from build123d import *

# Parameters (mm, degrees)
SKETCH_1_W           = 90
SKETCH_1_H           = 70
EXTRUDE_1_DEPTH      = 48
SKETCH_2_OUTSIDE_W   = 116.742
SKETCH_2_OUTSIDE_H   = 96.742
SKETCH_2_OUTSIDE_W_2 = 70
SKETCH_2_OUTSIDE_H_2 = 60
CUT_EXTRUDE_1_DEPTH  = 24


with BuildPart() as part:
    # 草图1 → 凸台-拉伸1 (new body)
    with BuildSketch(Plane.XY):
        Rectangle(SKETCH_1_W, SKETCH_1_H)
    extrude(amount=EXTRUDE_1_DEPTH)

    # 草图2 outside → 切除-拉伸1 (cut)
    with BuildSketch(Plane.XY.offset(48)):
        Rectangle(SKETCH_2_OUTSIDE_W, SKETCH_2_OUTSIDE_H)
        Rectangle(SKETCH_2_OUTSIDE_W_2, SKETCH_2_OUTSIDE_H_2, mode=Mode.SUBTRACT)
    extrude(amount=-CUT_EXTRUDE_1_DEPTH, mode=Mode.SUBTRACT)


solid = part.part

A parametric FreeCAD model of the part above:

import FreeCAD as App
import Part
import Sketcher

doc = App.newDocument("Part")
body = doc.addObject("PartDesign::Body", "Body")

# Sketch on XY plane
sketch1 = body.newObject("Sketcher::SketchObject", "Sketch")
sketch1.AttachmentSupport = (doc.getObject("XY_Plane"), [""])
sketch1.MapMode = "FlatFace"
sketch1.addGeometry([
    Part.LineSegment(App.Vector(-45, 35, 0), App.Vector(-45, -35, 0)),
    Part.LineSegment(App.Vector(-45, -35, 0), App.Vector(45, -35, 0)),
    Part.LineSegment(App.Vector(45, -35, 0), App.Vector(45, 35, 0)),
    Part.LineSegment(App.Vector(45, 35, 0), App.Vector(-45, 35, 0)),
], False)
sketch1.addConstraint([
    Sketcher.Constraint("Coincident", 0, 2, 1, 1),
    Sketcher.Constraint("Coincident", 1, 2, 2, 1),
    Sketcher.Constraint("Coincident", 2, 2, 3, 1),
    Sketcher.Constraint("Coincident", 3, 2, 0, 1),
    Sketcher.Constraint("Vertical", 0),
    Sketcher.Constraint("Horizontal", 1),
    Sketcher.Constraint("Vertical", 2),
    Sketcher.Constraint("Horizontal", 3),
    Sketcher.Constraint("Symmetric", 0, 2, 2, 2, -1, 1),
    Sketcher.Constraint("DistanceX", 1, 1, 1, 2, 90.0),
    Sketcher.Constraint("DistanceY", 0, 2, 0, 1, 70.0),
])
pad1 = body.newObject("PartDesign::Pad", "Pad")
pad1.Profile = sketch1
pad1.Length = 48

# Sketch on XY plane
sketch2 = body.newObject("Sketcher::SketchObject", "Sketch001")
sketch2.AttachmentSupport = (doc.getObject("XY_Plane"), [""])
sketch2.MapMode = "FlatFace"
sketch2.AttachmentOffset = App.Placement(App.Vector(0, 0, 48), App.Rotation())
sketch2.addGeometry([
    Part.LineSegment(App.Vector(-58, 48, 0), App.Vector(-58, -48, 0)),  # 0
    Part.LineSegment(App.Vector(-58, -48, 0), App.Vector(58, -48, 0)),  # 1
    Part.LineSegment(App.Vector(58, -48, 0), App.Vector(58, 48, 0)),  # 2
    Part.LineSegment(App.Vector(58, 48, 0), App.Vector(-58, 48, 0)),  # 3
    Part.LineSegment(App.Vector(35, -30, 0), App.Vector(-35, -30, 0)),  # 4
    Part.LineSegment(App.Vector(-35, -30, 0), App.Vector(-35, 30, 0)),  # 5
    Part.LineSegment(App.Vector(-35, 30, 0), App.Vector(35, 30, 0)),  # 6
    Part.LineSegment(App.Vector(35, 30, 0), App.Vector(35, -30, 0)),  # 7
], False)
sketch2.addConstraint([
    Sketcher.Constraint("Coincident", 0, 2, 1, 1),
    Sketcher.Constraint("Coincident", 1, 2, 2, 1),
    Sketcher.Constraint("Coincident", 2, 2, 3, 1),
    Sketcher.Constraint("Coincident", 3, 2, 0, 1),
    Sketcher.Constraint("Coincident", 4, 2, 5, 1),
    Sketcher.Constraint("Coincident", 5, 2, 6, 1),
    Sketcher.Constraint("Coincident", 6, 2, 7, 1),
    Sketcher.Constraint("Coincident", 7, 2, 4, 1),
    Sketcher.Constraint("Vertical", 0),
    Sketcher.Constraint("Horizontal", 1),
    Sketcher.Constraint("Vertical", 2),
    Sketcher.Constraint("Horizontal", 3),
    Sketcher.Constraint("Horizontal", 4),
    Sketcher.Constraint("Vertical", 5),
    Sketcher.Constraint("Horizontal", 6),
    Sketcher.Constraint("Vertical", 7),
    Sketcher.Constraint("Symmetric", 0, 2, 2, 2, -1, 1),
    Sketcher.Constraint("Symmetric", 4, 2, 6, 2, -1, 1),
    Sketcher.Constraint("DistanceX", 4, 2, 4, 1, 70.0),
    Sketcher.Constraint("DistanceY", 5, 1, 5, 2, 60.0),
    Sketcher.Constraint("DistanceX", 1, 1, 1, 2, 116.742),
    Sketcher.Constraint("DistanceY", 0, 2, 0, 1, 96.742),
])
pocket1 = body.newObject("PartDesign::Pocket", "Pocket")
pocket1.Profile = sketch2
pocket1.Length = 24

doc.recompute()
